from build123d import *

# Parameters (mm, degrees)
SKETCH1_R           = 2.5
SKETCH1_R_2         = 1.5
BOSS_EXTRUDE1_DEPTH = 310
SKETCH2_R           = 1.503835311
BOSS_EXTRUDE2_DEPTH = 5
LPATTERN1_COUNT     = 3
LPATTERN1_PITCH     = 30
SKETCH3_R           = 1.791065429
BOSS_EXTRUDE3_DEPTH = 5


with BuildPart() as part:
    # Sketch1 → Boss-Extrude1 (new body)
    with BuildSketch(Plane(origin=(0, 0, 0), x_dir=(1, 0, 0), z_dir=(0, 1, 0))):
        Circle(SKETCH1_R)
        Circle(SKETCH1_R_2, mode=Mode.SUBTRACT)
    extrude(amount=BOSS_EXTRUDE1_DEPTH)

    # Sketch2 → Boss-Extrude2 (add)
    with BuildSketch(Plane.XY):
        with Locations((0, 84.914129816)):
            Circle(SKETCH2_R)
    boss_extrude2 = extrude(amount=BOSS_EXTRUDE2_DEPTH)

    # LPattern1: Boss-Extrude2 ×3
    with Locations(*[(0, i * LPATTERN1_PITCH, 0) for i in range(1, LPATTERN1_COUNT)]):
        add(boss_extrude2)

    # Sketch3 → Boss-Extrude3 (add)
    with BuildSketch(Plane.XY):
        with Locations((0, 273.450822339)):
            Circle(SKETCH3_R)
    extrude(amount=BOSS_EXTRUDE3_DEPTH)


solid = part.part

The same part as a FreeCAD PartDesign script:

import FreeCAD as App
import Part
import Sketcher
Q = App.Units.Quantity

doc = App.newDocument("Part")
body = doc.addObject("PartDesign::Body", "Body")

sketch1 = body.newObject("Sketcher::SketchObject", "Sketch")
sketch1.AttachmentSupport = (doc.getObject("XZ_Plane"), [""])
sketch1.MapMode = "FlatFace"
sketch1.addGeometry(Part.Circle(App.Vector(0, 0, 0), App.Vector(0, 0, 1), 2.5), False)
sketch1.addGeometry(Part.Circle(App.Vector(0, 0, 0), App.Vector(0, 0, 1), 1.5), False)
sketch1.addConstraint(Sketcher.Constraint("Coincident", 0, 3, -1, 1))
sketch1.addConstraint(Sketcher.Constraint("Coincident", 1, 3, -1, 1))
sketch1.addConstraint(Sketcher.Constraint("Diameter", 0, Q("5 mm")))
sketch1.addConstraint(Sketcher.Constraint("Diameter", 1, Q("3 mm")))
pad1 = body.newObject("PartDesign::Pad", "Pad")
pad1.Profile = sketch1
pad1.Length = 310
pad1.Reversed = True

sketch2 = body.newObject("Sketcher::SketchObject", "Sketch001")
sketch2.AttachmentSupport = (doc.getObject("XY_Plane"), [""])
sketch2.MapMode = "FlatFace"
sketch2.addGeometry(Part.Circle(App.Vector(0, 84.9, 0), App.Vector(0, 0, 1), 1.5), False)
sketch2.addConstraint(Sketcher.Constraint("PointOnObject", 0, 3, -2))
sketch2.addConstraint(Sketcher.Constraint("Diameter", 0, Q("3.007671 mm")))
sketch2.addConstraint(Sketcher.Constraint("DistanceY", -1, 1, 0, 3, Q("84.91413 mm")))
pad2 = body.newObject("PartDesign::Pad", "Pad001")
pad2.Profile = sketch2
pad2.Length = 5
doc.recompute()

linearpattern = body.newObject("PartDesign::LinearPattern", "LinearPattern")
linearpattern.Originals = [pad2]
linearpattern.Direction = (doc.getObject("Y_Axis"), [""])
linearpattern.Mode = "offset"
linearpattern.Offset = 30
linearpattern.Occurrences = 3
body.Tip = linearpattern

sketch3 = body.newObject("Sketcher::SketchObject", "Sketch002")
sketch3.AttachmentSupport = (doc.getObject("XY_Plane"), [""])
sketch3.MapMode = "FlatFace"
sketch3.addGeometry(Part.Circle(App.Vector(0, 273.5, 0), App.Vector(0, 0, 1), 1.8), False)
sketch3.addConstraint(Sketcher.Constraint("PointOnObject", 0, 3, -2))
sketch3.addConstraint(Sketcher.Constraint("Diameter", 0, Q("3.582131 mm")))
sketch3.addConstraint(Sketcher.Constraint("DistanceY", -1, 1, 0, 3, Q("273.450822 mm")))
pad3 = body.newObject("PartDesign::Pad", "Pad002")
pad3.Profile = sketch3
pad3.Length = 5

doc.recompute()
